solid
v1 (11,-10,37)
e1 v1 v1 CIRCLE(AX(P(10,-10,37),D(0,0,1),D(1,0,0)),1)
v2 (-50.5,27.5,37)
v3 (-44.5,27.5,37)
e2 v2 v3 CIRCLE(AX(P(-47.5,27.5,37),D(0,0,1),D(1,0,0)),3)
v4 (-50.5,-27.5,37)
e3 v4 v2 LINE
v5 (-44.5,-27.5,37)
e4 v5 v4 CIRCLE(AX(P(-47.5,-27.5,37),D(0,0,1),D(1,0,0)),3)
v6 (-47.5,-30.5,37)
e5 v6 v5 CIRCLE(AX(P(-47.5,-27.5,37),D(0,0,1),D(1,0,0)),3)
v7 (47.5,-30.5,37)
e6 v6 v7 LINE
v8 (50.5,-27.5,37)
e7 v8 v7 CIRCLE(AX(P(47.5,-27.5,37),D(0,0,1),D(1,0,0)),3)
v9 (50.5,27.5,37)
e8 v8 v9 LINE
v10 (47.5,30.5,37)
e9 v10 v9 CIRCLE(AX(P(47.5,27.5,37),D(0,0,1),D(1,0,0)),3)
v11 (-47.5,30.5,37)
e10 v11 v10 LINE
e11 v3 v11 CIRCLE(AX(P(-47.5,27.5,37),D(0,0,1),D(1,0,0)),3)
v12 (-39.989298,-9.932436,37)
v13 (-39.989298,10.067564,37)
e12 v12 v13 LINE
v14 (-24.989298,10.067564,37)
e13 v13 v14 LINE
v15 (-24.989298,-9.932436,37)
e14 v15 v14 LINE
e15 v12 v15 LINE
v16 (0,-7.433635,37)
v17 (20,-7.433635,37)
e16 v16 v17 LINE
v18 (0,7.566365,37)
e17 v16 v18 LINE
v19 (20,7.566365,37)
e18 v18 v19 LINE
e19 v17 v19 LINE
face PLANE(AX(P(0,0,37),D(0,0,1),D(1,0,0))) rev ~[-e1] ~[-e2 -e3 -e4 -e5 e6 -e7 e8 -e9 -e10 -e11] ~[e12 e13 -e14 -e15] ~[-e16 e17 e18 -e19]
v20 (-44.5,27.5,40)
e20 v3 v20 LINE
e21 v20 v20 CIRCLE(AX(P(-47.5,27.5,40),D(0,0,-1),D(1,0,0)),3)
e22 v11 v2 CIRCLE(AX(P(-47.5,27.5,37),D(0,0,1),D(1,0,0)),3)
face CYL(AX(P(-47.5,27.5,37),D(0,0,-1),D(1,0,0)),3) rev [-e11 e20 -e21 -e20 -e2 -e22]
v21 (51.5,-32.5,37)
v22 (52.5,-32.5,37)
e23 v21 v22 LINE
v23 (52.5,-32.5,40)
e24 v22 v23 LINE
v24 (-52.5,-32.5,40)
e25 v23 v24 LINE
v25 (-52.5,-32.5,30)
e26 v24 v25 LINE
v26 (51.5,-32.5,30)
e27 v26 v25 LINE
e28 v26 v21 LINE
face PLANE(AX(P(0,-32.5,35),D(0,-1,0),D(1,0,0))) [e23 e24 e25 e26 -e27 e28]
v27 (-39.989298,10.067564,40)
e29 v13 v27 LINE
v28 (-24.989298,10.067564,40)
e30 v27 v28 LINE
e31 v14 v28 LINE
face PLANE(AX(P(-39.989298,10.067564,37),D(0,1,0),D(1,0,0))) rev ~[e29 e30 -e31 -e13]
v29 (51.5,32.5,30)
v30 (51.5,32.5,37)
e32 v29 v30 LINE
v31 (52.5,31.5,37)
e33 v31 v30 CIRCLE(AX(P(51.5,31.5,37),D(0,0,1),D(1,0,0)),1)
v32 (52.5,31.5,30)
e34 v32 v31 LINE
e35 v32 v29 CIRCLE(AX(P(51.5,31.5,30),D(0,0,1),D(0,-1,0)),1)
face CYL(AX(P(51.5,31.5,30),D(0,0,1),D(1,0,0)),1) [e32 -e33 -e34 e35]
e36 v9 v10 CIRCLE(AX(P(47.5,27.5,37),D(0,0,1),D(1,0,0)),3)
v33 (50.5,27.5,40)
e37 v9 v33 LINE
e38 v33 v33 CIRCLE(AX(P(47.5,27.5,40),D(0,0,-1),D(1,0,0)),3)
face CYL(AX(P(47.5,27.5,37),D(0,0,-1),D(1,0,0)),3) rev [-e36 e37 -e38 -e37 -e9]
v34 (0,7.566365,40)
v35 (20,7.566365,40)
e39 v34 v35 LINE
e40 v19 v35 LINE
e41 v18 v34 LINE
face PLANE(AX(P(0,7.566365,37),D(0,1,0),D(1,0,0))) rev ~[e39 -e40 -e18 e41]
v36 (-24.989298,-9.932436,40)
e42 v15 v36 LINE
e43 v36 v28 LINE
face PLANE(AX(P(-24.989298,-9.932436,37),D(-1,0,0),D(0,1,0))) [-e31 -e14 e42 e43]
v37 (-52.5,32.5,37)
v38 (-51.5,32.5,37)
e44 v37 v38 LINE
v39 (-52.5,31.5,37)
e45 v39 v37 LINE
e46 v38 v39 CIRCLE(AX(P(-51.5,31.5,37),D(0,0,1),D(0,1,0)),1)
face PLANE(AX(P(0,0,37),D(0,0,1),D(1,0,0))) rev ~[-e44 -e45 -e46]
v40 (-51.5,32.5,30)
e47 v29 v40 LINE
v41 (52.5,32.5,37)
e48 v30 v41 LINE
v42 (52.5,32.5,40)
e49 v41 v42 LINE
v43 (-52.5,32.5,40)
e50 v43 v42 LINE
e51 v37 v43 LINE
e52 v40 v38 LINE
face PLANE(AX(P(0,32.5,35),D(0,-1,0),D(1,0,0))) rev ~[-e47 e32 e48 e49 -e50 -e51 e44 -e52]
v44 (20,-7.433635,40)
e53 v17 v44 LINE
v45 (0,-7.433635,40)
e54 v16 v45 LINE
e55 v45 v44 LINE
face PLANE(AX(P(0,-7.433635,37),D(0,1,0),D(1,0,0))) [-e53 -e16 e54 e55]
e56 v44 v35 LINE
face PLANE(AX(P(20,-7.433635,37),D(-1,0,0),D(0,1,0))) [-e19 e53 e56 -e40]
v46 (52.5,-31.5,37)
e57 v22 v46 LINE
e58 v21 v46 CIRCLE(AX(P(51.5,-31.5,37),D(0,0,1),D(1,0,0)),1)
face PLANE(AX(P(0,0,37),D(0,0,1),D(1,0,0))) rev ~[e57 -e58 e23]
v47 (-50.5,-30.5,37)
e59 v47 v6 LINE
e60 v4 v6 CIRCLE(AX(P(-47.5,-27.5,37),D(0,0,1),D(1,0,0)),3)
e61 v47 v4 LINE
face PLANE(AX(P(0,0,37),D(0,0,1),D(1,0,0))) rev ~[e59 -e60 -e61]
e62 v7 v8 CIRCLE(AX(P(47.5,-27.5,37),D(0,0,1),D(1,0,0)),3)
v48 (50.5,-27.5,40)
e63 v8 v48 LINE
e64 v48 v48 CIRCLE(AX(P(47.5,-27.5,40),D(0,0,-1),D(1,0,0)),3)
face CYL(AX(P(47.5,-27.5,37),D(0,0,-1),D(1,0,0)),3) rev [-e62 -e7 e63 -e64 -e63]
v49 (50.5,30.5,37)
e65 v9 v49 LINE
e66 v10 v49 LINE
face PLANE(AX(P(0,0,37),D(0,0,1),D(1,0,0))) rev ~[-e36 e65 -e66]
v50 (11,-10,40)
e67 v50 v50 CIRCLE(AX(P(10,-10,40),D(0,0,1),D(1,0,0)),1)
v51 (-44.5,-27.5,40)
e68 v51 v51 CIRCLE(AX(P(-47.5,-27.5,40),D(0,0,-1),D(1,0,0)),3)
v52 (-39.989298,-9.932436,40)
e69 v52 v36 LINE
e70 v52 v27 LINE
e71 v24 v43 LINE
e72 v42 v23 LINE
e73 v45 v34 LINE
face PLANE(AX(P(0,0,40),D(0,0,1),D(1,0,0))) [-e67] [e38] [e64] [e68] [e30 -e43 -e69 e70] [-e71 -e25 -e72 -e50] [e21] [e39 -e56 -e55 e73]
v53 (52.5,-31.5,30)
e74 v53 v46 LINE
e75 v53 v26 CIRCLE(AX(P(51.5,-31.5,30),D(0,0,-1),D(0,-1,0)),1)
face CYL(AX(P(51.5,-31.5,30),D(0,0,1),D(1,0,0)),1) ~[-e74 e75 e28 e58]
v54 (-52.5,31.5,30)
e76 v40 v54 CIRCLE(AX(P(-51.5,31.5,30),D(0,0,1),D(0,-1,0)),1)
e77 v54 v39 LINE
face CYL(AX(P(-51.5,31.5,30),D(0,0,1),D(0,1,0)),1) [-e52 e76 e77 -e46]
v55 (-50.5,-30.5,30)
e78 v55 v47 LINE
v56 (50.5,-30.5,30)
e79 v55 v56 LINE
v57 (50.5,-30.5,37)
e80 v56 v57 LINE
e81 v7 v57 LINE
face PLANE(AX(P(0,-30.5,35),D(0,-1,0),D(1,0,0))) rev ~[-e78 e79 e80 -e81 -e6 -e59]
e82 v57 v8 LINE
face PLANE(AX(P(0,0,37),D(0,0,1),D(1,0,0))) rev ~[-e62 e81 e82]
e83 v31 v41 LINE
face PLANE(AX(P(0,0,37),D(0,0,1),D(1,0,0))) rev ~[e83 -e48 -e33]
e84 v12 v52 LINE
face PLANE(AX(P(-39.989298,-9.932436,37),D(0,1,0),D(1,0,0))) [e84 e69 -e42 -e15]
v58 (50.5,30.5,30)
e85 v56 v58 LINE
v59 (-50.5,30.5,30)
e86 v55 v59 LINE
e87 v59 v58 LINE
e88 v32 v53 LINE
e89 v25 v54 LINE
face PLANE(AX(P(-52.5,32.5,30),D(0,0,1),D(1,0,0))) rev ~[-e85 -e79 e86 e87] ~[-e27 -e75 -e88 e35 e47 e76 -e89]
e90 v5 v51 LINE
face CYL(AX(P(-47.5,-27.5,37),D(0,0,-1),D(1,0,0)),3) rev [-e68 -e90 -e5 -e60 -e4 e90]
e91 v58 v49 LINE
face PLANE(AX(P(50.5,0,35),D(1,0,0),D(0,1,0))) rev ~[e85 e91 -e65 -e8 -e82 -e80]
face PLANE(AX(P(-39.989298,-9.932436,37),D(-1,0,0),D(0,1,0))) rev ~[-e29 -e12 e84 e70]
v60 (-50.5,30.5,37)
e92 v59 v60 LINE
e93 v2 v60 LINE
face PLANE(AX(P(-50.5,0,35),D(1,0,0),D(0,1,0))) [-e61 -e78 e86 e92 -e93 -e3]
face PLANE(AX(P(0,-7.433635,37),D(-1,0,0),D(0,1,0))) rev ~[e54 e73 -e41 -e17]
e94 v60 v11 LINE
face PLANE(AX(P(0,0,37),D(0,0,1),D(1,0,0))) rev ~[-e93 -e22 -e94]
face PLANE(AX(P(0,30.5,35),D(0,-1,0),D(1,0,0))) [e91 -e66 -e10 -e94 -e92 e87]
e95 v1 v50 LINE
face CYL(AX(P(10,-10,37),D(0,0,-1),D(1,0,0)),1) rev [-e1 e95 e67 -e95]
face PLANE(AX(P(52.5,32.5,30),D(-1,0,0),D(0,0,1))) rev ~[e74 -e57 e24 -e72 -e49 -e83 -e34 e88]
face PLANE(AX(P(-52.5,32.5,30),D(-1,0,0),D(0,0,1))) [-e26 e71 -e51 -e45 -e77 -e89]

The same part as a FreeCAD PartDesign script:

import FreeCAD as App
import Part
import Sketcher
from FreeCAD import Vector
Q = App.Units.Quantity


def edges_at(feature, points):
    """Names of the edges that pass closest to the given points."""
    edges = feature.Shape.Edges
    near = lambda p: min(range(len(edges)), key=lambda i: edges[i].distToShape(Part.Vertex(*p))[0])
    return sorted({f"Edge{near(p) + 1}" for p in points})


def add_polygon(sketch, points):
    """Adds a closed chain of lines whose ends are joined by coincident constraints."""
    first, n = sketch.GeometryCount, len(points)
    for a, b in zip(points, points[1:] + points[:1]):
        sketch.addGeometry(Part.LineSegment(App.Vector(*a, 0), App.Vector(*b, 0)), False)
    for i in range(n):
        sketch.addConstraint(Sketcher.Constraint("Coincident", first + i, 2, first + (i + 1) % n, 1))

doc = App.newDocument("Part")
body = doc.addObject("PartDesign::Body", "Body")

# Sketch on XZ plane
sketch1 = doc.addObject("Sketcher::SketchObject", "Sketch")
body.addObject(sketch1)
sketch1.AttachmentSupport = (doc.XZ_Plane, [""])
sketch1.MapMode = "FlatFace"
add_polygon(sketch1, [(-52, 10), (-52, 0), (52, 0), (52, 10)])  # lines 0-3
sketch1.addConstraint([
    Sketcher.Constraint("Vertical", 0),
    Sketcher.Constraint("Horizontal", 1),
    Sketcher.Constraint("Vertical", 2),
    Sketcher.Constraint("Horizontal", 3),
    Sketcher.Constraint("Symmetric", 0, 2, 1, 2, -1, 1),
    Sketcher.Constraint("DistanceX", 1, 1, 1, 2, Q("105 mm")),
    Sketcher.Constraint("DistanceY", 0, 2, 0, 1, Q("10 mm")),
])
pad1 = doc.addObject("PartDesign::Pad", "Pad")
body.addObject(pad1)
pad1.Profile = sketch1
pad1.Length = 2
doc.recompute()

fillet = doc.addObject("PartDesign::Fillet", "Fillet")
body.addObject(fillet)
fillet.Base = (pad1, edges_at(pad1, [(52.5, -2, 5)]))
fillet.Radius = 1
body2 = doc.addObject("PartDesign::Body", "Body001")
doc.recompute()

body.Placement = App.Placement(Vector(0, -30.5, 36), App.Rotation(Vector(0, 0, 1), 0))
boolean = doc.addObject("PartDesign::Boolean", "Boolean")
body2.addObject(boolean)
boolean.Type = "Fuse"
boolean.addObjects([body])
body3 = doc.addObject("PartDesign::Body", "Body002")

# Sketch on XZ plane
sketch2 = doc.addObject("Sketcher::SketchObject", "Sketch001")
body3.addObject(sketch2)
sketch2.AttachmentSupport = (doc.getObject("XZ_Plane002"), [""])
sketch2.MapMode = "FlatFace"
add_polygon(sketch2, [(-52, 10), (-52, 0), (52, 0), (52, 10)])  # lines 0-3
sketch2.addConstraint([
    Sketcher.Constraint("Vertical", 0),
    Sketcher.Constraint("Horizontal", 1),
    Sketcher.Constraint("Vertical", 2),
    Sketcher.Constraint("Horizontal", 3),
    Sketcher.Constraint("Symmetric", 0, 2, 1, 2, -1, 1),
    Sketcher.Constraint("DistanceX", 1, 1, 1, 2, Q("105 mm")),
    Sketcher.Constraint("DistanceY", 0, 2, 0, 1, Q("10 mm")),
])
pad2 = doc.addObject("PartDesign::Pad", "Pad001")
body3.addObject(pad2)
pad2.Profile = sketch2
pad2.Length = 2
doc.recompute()

fillet2 = doc.addObject("PartDesign::Fillet", "Fillet001")
body3.addObject(fillet2)
fillet2.Base = (pad2, edges_at(pad2, [(52.5, 0, 5)]))
fillet2.Radius = 1
doc.recompute()

fillet3 = doc.addObject("PartDesign::Fillet", "Fillet002")
body3.addObject(fillet3)
fillet3.Base = (fillet2, edges_at(fillet2, [(-52.5, 0, 5)]))
fillet3.Radius = 1
doc.recompute()

fillet4 = doc.addObject("PartDesign::Fillet", "Fillet003")
body3.addObject(fillet4)
fillet4.Base = (fillet3, edges_at(fillet3, [(0, 0, 10)]))
fillet4.Radius = 1
body4 = doc.addObject("PartDesign::Body", "Body003")
doc.recompute()

body3.Placement = App.Placement(Vector(0, 32.5, 36), App.Rotation(Vector(0, 0, 1), 0))
boolean2 = doc.addObject("PartDesign::Boolean", "Boolean001")
body4.addObject(boolean2)
boolean2.Type = "Fuse"
boolean2.addObjects([body3])
body5 = doc.addObject("PartDesign::Body", "Body004")

# Sketch on YZ plane
sketch3 = doc.addObject("Sketcher::SketchObject", "Sketch002")
body5.addObject(sketch3)
sketch3.AttachmentSupport = (doc.getObject("YZ_Plane004"), [""])
sketch3.MapMode = "FlatFace"
add_polygon(sketch3, [(-32, 10), (-32, 0), (32, 0), (32, 10)])  # lines 0-3
sketch3.addConstraint([
    Sketcher.Constraint("Vertical", 0),
    Sketcher.Constraint("Horizontal", 1),
    Sketcher.Constraint("Vertical", 2),
    Sketcher.Constraint("Horizontal", 3),
    Sketcher.Constraint("Symmetric", 0, 2, 1, 2, -1, 1),
    Sketcher.Constraint("DistanceX", 1, 1, 1, 2, Q("65 mm")),
    Sketcher.Constraint("DistanceY", 0, 2, 0, 1, Q("10 mm")),
])
pad3 = doc.addObject("PartDesign::Pad", "Pad002")
body5.addObject(pad3)
pad3.Profile = sketch3
pad3.Length = 2
doc.recompute()

fillet5 = doc.addObject("PartDesign::Fillet", "Fillet004")
body5.addObject(fillet5)
fillet5.Base = (pad3, edges_at(pad3, [(0, 32.5, 5)]))
fillet5.Radius = 1
doc.recompute()

fillet6 = doc.addObject("PartDesign::Fillet", "Fillet005")
body5.addObject(fillet6)
fillet6.Base = (fillet5, edges_at(fillet5, [(0, -32.5, 5)]))
fillet6.Radius = 1
doc.recompute()

fillet7 = doc.addObject("PartDesign::Fillet", "Fillet006")
body5.addObject(fillet7)
fillet7.Base = (fillet6, edges_at(fillet6, [(0, 0, 10)]))
fillet7.Radius = 1
body6 = doc.addObject("PartDesign::Body", "Body005")
doc.recompute()

body5.Placement = App.Placement(Vector(-52.5, 0, 36), App.Rotation(Vector(0, 0, 1), 0))
boolean3 = doc.addObject("PartDesign::Boolean", "Boolean002")
body6.addObject(boolean3)
boolean3.Type = "Fuse"
boolean3.addObjects([body5])
body7 = doc.addObject("PartDesign::Body", "Body006")

# Sketch on YZ plane
sketch4 = doc.addObject("Sketcher::SketchObject", "Sketch003")
body7.addObject(sketch4)
sketch4.AttachmentSupport = (doc.getObject("YZ_Plane006"), [""])
sketch4.MapMode = "FlatFace"
add_polygon(sketch4, [(-32, 10), (-32, 0), (32, 0), (32, 10)])  # lines 0-3
sketch4.addConstraint([
    Sketcher.Constraint("Vertical", 0),
    Sketcher.Constraint("Horizontal", 1),
    Sketcher.Constraint("Vertical", 2),
    Sketcher.Constraint("Horizontal", 3),
    Sketcher.Constraint("Symmetric", 0, 2, 1, 2, -1, 1),
    Sketcher.Constraint("DistanceX", 1, 1, 1, 2, Q("65 mm")),
    Sketcher.Constraint("DistanceY", 0, 2, 0, 1, Q("10 mm")),
])
pad4 = doc.addObject("PartDesign::Pad", "Pad003")
body7.addObject(pad4)
pad4.Profile = sketch4
pad4.Length = 2
doc.recompute()

fillet8 = doc.addObject("PartDesign::Fillet", "Fillet007")
body7.addObject(fillet8)
fillet8.Base = (pad4, edges_at(pad4, [(2, -32.5, 5)]))
fillet8.Radius = 1
doc.recompute()

fillet9 = doc.addObject("PartDesign::Fillet", "Fillet008")
body7.addObject(fillet9)
fillet9.Base = (fillet8, edges_at(fillet8, [(2, 32.5, 5)]))
fillet9.Radius = 1
doc.recompute()

fillet10 = doc.addObject("PartDesign::Fillet", "Fillet009")
body7.addObject(fillet10)
fillet10.Base = (fillet9, edges_at(fillet9, [(2, 0, 10)]))
fillet10.Radius = 1
body8 = doc.addObject("PartDesign::Body", "Body007")
doc.recompute()

body7.Placement = App.Placement(Vector(50.5, 0, 36), App.Rotation(Vector(0, 0, 1), 0))
boolean4 = doc.addObject("PartDesign::Boolean", "Boolean003")
body8.addObject(boolean4)
boolean4.Type = "Fuse"
boolean4.addObjects([body7])
body9 = doc.addObject("PartDesign::Body", "Body008")

# Sketch on XY plane
sketch5 = doc.addObject("Sketcher::SketchObject", "Sketch004")
body9.addObject(sketch5)
sketch5.AttachmentSupport = (doc.getObject("XY_Plane008"), [""])
sketch5.MapMode = "FlatFace"
add_polygon(sketch5, [(-52.5, 32.5), (-52.5, -32.5), (52.5, -32.5), (52.5, 32.5)])  # lines 0-3
sketch5.addGeometry(Part.Circle(Vector(-47.5, -27.5, 0), Vector(0, 0, 1), 3), False)  # 4
sketch5.addGeometry(Part.Circle(Vector(47.5, -27.5, 0), Vector(0, 0, 1), 3), False)  # 5
sketch5.addGeometry(Part.Circle(Vector(10, -10, 0), Vector(0, 0, 1), 1), False)  # 6
add_polygon(sketch5, [(-25, -9.9), (-40, -9.9), (-40, 10.1), (-25, 10.1)])  # lines 7-10
sketch5.addGeometry(Part.Circle(Vector(-47.5, 27.5, 0), Vector(0, 0, 1), 3), False)  # 11
add_polygon(sketch5, [(20, -7.4), (0, -7.4), (0, 7.6), (20, 7.6)])  # lines 12-15
sketch5.addGeometry(Part.Circle(Vector(47.5, 27.5, 0), Vector(0, 0, 1), 3), False)  # 16
sketch5.addConstraint([
    Sketcher.Constraint("Vertical", 0),
    Sketcher.Constraint("Horizontal", 1),
    Sketcher.Constraint("Vertical", 2),
    Sketcher.Constraint("Horizontal", 3),
    Sketcher.Constraint("Horizontal", 7),
    Sketcher.Constraint("Vertical", 8),
    Sketcher.Constraint("Horizontal", 9),
    Sketcher.Constraint("Vertical", 10),
    Sketcher.Constraint("Horizontal", 12),
    Sketcher.Constraint("Vertical", 13),
    Sketcher.Constraint("Horizontal", 14),
    Sketcher.Constraint("Vertical", 15),
    Sketcher.Constraint("Equal", 4, 5),
    Sketcher.Constraint("Equal", 5, 11),
    Sketcher.Constraint("Equal", 11, 16),
    Sketcher.Constraint("Symmetric", 5, 3, 11, 3, -1, 1),
    Sketcher.Constraint("Symmetric", 4, 3, 16, 3, -1, 1),
    Sketcher.Constraint("Symmetric", 0, 2, 2, 2, -1, 1),
    Sketcher.Constraint("Symmetric", 4, 3, 5, 3, -2),
    Sketcher.Constraint("PointOnObject", 12, 2, -2),
    Sketcher.Constraint("Equal", 14, 8),
    Sketcher.Constraint("Equal", 9, 13),
    Sketcher.Constraint("Diameter", 4, Q("6 mm")),
    Sketcher.Constraint("Diameter", 6, Q("2 mm")),
    Sketcher.Constraint("DistanceX", 1, 1, 1, 2, Q("105 mm")),
    Sketcher.Constraint("DistanceX", 7, 2, 7, 1, Q("15 mm")),
    Sketcher.Constraint("DistanceX", 12, 2, 12, 1, Q("20 mm")),
    Sketcher.Constraint("DistanceY", 0, 2, 0, 1, Q("65 mm")),
    Sketcher.Constraint("DistanceX", -1, 1, 6, 3, Q("10 mm")),
    Sketcher.Constraint("DistanceY", 6, 3, -1, 1, Q("10 mm")),
    Sketcher.Constraint("DistanceX", 4, 3, 5, 3, Q("95 mm")),
    Sketcher.Constraint("DistanceY", 4, 3, 11, 3, Q("55 mm")),
    Sketcher.Constraint("DistanceX", 9, 2, -1, 1, Q("24.989298 mm")),
    Sketcher.Constraint("DistanceY", 10, 2, 12, 2, Q("2.498801 mm")),
    Sketcher.Constraint("DistanceY", 7, 2, -1, 1, Q("9.932436 mm")),
])
pad5 = doc.addObject("PartDesign::Pad", "Pad004")
body9.addObject(pad5)
pad5.Profile = sketch5
pad5.Length = 3
body10 = doc.addObject("PartDesign::Body", "Body009")
doc.recompute()

body9.Placement = App.Placement(Vector(0, 0, 43), App.Rotation(Vector(0, 0, 1), 0))
boolean5 = doc.addObject("PartDesign::Boolean", "Boolean004")
body10.addObject(boolean5)
boolean5.Type = "Fuse"
boolean5.addObjects([body9])
doc.recompute()

boolean6 = doc.addObject("PartDesign::Boolean", "Boolean005")
body10.addObject(boolean6)
boolean6.Type = "Fuse"
boolean6.addObjects([body2])
doc.recompute()

boolean7 = doc.addObject("PartDesign::Boolean", "Boolean006")
body10.addObject(boolean7)
boolean7.Type = "Fuse"
boolean7.addObjects([body4])
doc.recompute()

boolean8 = doc.addObject("PartDesign::Boolean", "Boolean007")
body10.addObject(boolean8)
boolean8.Type = "Fuse"
boolean8.addObjects([body6])
doc.recompute()

boolean9 = doc.addObject("PartDesign::Boolean", "Boolean008")
body10.addObject(boolean9)
boolean9.Type = "Fuse"
boolean9.addObjects([body8])
body11 = doc.addObject("PartDesign::Body", "Body010")
doc.recompute()

body10.Placement = App.Placement(Vector(0, 0, -6), App.Rotation(Vector(0, 0, 1), 0))
boolean10 = doc.addObject("PartDesign::Boolean", "Boolean009")
body11.addObject(boolean10)
boolean10.Type = "Fuse"
boolean10.addObjects([body10])

doc.recompute()
